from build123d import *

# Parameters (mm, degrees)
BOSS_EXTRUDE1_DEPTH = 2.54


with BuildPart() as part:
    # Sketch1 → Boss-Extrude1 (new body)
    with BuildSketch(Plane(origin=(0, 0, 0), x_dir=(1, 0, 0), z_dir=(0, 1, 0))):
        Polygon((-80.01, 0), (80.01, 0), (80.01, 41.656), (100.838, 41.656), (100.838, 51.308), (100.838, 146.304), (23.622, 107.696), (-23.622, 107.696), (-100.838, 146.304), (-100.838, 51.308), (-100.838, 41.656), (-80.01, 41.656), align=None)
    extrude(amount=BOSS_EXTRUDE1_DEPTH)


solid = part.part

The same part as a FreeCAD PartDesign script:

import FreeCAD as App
import Part
import Sketcher
Q = App.Units.Quantity

doc = App.newDocument("Part")
body = doc.addObject("PartDesign::Body", "Body")

# Sketch on XZ plane
sketch1 = body.newObject("Sketcher::SketchObject", "Sketch")
sketch1.AttachmentSupport = (doc.getObject("XZ_Plane"), [""])
sketch1.MapMode = "FlatFace"
sketch1.addGeometry(Part.LineSegment(App.Vector(-80, 0, 0), App.Vector(80, 0, 0)), False)
sketch1.addGeometry(Part.LineSegment(App.Vector(80, 0, 0), App.Vector(80, -42, 0)), False)
sketch1.addGeometry(Part.LineSegment(App.Vector(80, -42, 0), App.Vector(101, -42, 0)), False)
sketch1.addGeometry(Part.LineSegment(App.Vector(101, -42, 0), App.Vector(101, -146, 0)), False)
sketch1.addGeometry(Part.LineSegment(App.Vector(101, -146, 0), App.Vector(24, -108, 0)), False)
sketch1.addGeometry(Part.LineSegment(App.Vector(24, -108, 0), App.Vector(-24, -108, 0)), False)
sketch1.addGeometry(Part.LineSegment(App.Vector(-24, -108, 0), App.Vector(-101, -146, 0)), False)
sketch1.addGeometry(Part.LineSegment(App.Vector(-101, -146, 0), App.Vector(-101, -42, 0)), False)
sketch1.addGeometry(Part.LineSegment(App.Vector(-101, -42, 0), App.Vector(-80, -42, 0)), False)
sketch1.addGeometry(Part.LineSegment(App.Vector(-80, -42, 0), App.Vector(-80, 0, 0)), False)
sketch1.addConstraint(Sketcher.Constraint("Coincident", 0, 2, 1, 1))
sketch1.addConstraint(Sketcher.Constraint("Coincident", 1, 2, 2, 1))
sketch1.addConstraint(Sketcher.Constraint("Coincident", 2, 2, 3, 1))
sketch1.addConstraint(Sketcher.Constraint("Coincident", 3, 2, 4, 1))
sketch1.addConstraint(Sketcher.Constraint("Coincident", 4, 2, 5, 1))
sketch1.addConstraint(Sketcher.Constraint("Coincident", 5, 2, 6, 1))
sketch1.addConstraint(Sketcher.Constraint("Coincident", 6, 2, 7, 1))
sketch1.addConstraint(Sketcher.Constraint("Coincident", 7, 2, 8, 1))
sketch1.addConstraint(Sketcher.Constraint("Coincident", 8, 2, 9, 1))
sketch1.addConstraint(Sketcher.Constraint("Coincident", 9, 2, 0, 1))
sketch1.addConstraint(Sketcher.Constraint("Horizontal", 0))
sketch1.addConstraint(Sketcher.Constraint("Vertical", 1))
sketch1.addConstraint(Sketcher.Constraint("Horizontal", 2))
sketch1.addConstraint(Sketcher.Constraint("Vertical", 3))
sketch1.addConstraint(Sketcher.Constraint("Horizontal", 5))
sketch1.addConstraint(Sketcher.Constraint("Vertical", 7))
sketch1.addConstraint(Sketcher.Constraint("Horizontal", 8))
sketch1.addConstraint(Sketcher.Constraint("Vertical", 9))
sketch1.addConstraint(Sketcher.Constraint("Symmetric", 0, 2, 9, 2, -1, 1))
sketch1.addConstraint(Sketcher.Constraint("Symmetric", 3, 2, 6, 2, -2))
sketch1.addConstraint(Sketcher.Constraint("Horizontal", 2, 2, 7, 2))
sketch1.addConstraint(Sketcher.Constraint("Equal", 4, 6))
sketch1.addConstraint(Sketcher.Constraint("DistanceX", 0, 1, 0, 2, Q("6.3 in")))
sketch1.addConstraint(Sketcher.Constraint("DistanceX", 2, 1, 2, 2, Q("0.82 in")))
sketch1.addConstraint(Sketcher.Constraint("DistanceX", 5, 2, 5, 1, Q("1.86 in")))
sketch1.addConstraint(Sketcher.Constraint("DistanceY", 1, 2, 1, 1, Q("1.64 in")))
sketch1.addConstraint(Sketcher.Constraint("DistanceY", 3, 2, 3, 1, Q("4.12 in")))
sketch1.addConstraint(Sketcher.Constraint("DistanceY", 4, 2, 1, 2, Q("2.6 in")))
pad1 = body.newObject("PartDesign::Pad", "Pad")
pad1.Profile = sketch1
pad1.Length = Q("0.1 in")
pad1.Reversed = True

doc.recompute()
